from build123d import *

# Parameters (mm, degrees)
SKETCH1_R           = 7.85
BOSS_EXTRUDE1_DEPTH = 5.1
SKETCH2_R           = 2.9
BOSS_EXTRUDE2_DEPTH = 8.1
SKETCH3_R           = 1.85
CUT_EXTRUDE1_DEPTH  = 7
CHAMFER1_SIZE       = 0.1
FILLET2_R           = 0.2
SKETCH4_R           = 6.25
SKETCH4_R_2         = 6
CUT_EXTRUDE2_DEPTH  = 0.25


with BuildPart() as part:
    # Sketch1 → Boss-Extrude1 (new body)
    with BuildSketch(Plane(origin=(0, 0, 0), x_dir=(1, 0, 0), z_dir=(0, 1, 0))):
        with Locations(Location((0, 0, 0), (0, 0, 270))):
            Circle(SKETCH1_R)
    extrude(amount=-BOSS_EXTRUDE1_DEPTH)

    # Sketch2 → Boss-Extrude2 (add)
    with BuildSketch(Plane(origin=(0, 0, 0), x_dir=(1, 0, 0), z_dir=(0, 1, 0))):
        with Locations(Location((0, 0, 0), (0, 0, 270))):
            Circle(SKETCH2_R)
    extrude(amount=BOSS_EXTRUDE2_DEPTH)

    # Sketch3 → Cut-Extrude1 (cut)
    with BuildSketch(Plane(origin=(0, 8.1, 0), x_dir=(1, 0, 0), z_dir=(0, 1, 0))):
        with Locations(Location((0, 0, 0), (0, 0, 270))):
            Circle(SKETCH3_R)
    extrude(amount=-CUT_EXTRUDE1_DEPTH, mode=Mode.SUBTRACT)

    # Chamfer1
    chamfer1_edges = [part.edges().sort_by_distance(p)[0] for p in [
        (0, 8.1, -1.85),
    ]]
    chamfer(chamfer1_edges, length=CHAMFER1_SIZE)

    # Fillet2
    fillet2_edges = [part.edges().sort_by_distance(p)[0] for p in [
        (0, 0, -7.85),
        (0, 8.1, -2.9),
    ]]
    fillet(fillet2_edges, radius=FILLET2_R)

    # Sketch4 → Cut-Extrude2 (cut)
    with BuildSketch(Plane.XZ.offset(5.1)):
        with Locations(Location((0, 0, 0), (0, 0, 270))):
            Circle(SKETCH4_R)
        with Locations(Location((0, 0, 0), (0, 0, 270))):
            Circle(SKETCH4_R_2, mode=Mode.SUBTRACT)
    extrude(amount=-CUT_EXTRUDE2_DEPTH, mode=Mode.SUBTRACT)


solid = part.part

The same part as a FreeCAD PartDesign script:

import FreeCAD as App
import Part
import Sketcher


def edges_at(feature, points):
    """Names of the edges that pass closest to the given points."""
    edges = feature.Shape.Edges
    near = lambda p: min(range(len(edges)), key=lambda i: edges[i].distToShape(Part.Vertex(*p))[0])
    return sorted({f"Edge{near(p) + 1}" for p in points})

doc = App.newDocument("Part")
params = doc.addObject("Spreadsheet::Sheet", "Params")
for row, (alias, value) in enumerate([
    ("sketch1_diameter", "15.7 mm"),
    ("pad1_length", "5.1 mm"),
    ("sketch2_diameter", "5.8 mm"),
    ("pad2_length", "8.1 mm"),
    ("sketch3_diameter", "3.7 mm"),
    ("pocket1_length", "7 mm"),
    ("chamfer_size", "0.1 mm"),
    ("fillet_radius", "0.2 mm"),
    ("sketch4_diameter", "12 mm"),
    ("sketch4_diameter2", "12.5 mm"),
    ("pocket2_length", "0.25 mm"),
], start=1):
    params.set(f"A{row}", alias)
    params.set(f"B{row}", "=" + value)
    params.setAlias(f"B{row}", alias)

body = doc.addObject("PartDesign::Body", "Body")

# Sketch on XZ plane
sketch1 = body.newObject("Sketcher::SketchObject", "Sketch")
sketch1.AttachmentSupport = (doc.getObject("XZ_Plane"), [""])
sketch1.MapMode = "FlatFace"
sketch1.addGeometry(Part.Circle(App.Vector(0, 0, 0), App.Vector(0, 0, 1), 8), False)
sketch1.addConstraint([
    Sketcher.Constraint("Coincident", 0, 3, -1, 1),
    Sketcher.Constraint("Diameter", 0, 15.7),
])
sketch1.setExpression("Constraints[1]", "Params.sketch1_diameter")
pad1 = body.newObject("PartDesign::Pad", "Pad")
pad1.Profile = sketch1
pad1.setExpression("Length", "Params.pad1_length")

# Sketch on XZ plane
sketch2 = body.newObject("Sketcher::SketchObject", "Sketch001")
sketch2.AttachmentSupport = (doc.getObject("XZ_Plane"), [""])
sketch2.MapMode = "FlatFace"
sketch2.addGeometry(Part.Circle(App.Vector(0, 0, 0), App.Vector(0, 0, 1), 2.9), False)
sketch2.addConstraint([
    Sketcher.Constraint("Coincident", 0, 3, -1, 1),
    Sketcher.Constraint("Diameter", 0, 5.8),
])
sketch2.setExpression("Constraints[1]", "Params.sketch2_diameter")
pad2 = body.newObject("PartDesign::Pad", "Pad001")
pad2.Profile = sketch2
pad2.setExpression("Length", "Params.pad2_length")
pad2.Reversed = True

# Sketch on XZ plane
sketch3 = body.newObject("Sketcher::SketchObject", "Sketch002")
sketch3.AttachmentSupport = (doc.getObject("XZ_Plane"), [""])
sketch3.MapMode = "FlatFace"
sketch3.AttachmentOffset = App.Placement(App.Vector(0, 0, -8.1), App.Rotation())
sketch3.addGeometry(Part.Circle(App.Vector(0, 0, 0), App.Vector(0, 0, 1), 1.9), False)
sketch3.addConstraint([
    Sketcher.Constraint("Coincident", 0, 3, -1, 1),
    Sketcher.Constraint("Diameter", 0, 3.7),
])
sketch3.setExpression("Constraints[1]", "Params.sketch3_diameter")
pocket1 = body.newObject("PartDesign::Pocket", "Pocket")
pocket1.Profile = sketch3
pocket1.setExpression("Length", "Params.pocket1_length")
pocket1.Reversed = True
doc.recompute()

chamfer = body.newObject("PartDesign::Chamfer", "Chamfer")
chamfer.Base = (pocket1, edges_at(pocket1, [(0, 8.1, -1.85)]))
chamfer.setExpression("Size", "Params.chamfer_size")
doc.recompute()

fillet = body.newObject("PartDesign::Fillet", "Fillet")
fillet.Base = (chamfer, edges_at(chamfer, [(0, 0, -7.85), (0, 8.1, -2.9)]))
fillet.setExpression("Radius", "Params.fillet_radius")

# Sketch on XZ plane
sketch4 = body.newObject("Sketcher::SketchObject", "Sketch003")
sketch4.AttachmentSupport = (doc.getObject("XZ_Plane"), [""])
sketch4.MapMode = "FlatFace"
sketch4.AttachmentOffset = App.Placement(App.Vector(0, 0, 5.1), App.Rotation())
sketch4.addGeometry([
    Part.Circle(App.Vector(0, 0, 0), App.Vector(0, 0, 1), 6),
    Part.Circle(App.Vector(0, 0, 0), App.Vector(0, 0, 1), 6),
], False)
sketch4.addConstraint([
    Sketcher.Constraint("Coincident", 0, 3, -1, 1),
    Sketcher.Constraint("Coincident", 1, 3, -1, 1),
    Sketcher.Constraint("Diameter", 1, 12.0),
    Sketcher.Constraint("Diameter", 0, 12.5),
])
sketch4.setExpression("Constraints[2]", "Params.sketch4_diameter")
sketch4.setExpression("Constraints[3]", "Params.sketch4_diameter2")
pocket2 = body.newObject("PartDesign::Pocket", "Pocket001")
pocket2.Profile = sketch4
pocket2.setExpression("Length", "Params.pocket2_length")

doc.recompute()
